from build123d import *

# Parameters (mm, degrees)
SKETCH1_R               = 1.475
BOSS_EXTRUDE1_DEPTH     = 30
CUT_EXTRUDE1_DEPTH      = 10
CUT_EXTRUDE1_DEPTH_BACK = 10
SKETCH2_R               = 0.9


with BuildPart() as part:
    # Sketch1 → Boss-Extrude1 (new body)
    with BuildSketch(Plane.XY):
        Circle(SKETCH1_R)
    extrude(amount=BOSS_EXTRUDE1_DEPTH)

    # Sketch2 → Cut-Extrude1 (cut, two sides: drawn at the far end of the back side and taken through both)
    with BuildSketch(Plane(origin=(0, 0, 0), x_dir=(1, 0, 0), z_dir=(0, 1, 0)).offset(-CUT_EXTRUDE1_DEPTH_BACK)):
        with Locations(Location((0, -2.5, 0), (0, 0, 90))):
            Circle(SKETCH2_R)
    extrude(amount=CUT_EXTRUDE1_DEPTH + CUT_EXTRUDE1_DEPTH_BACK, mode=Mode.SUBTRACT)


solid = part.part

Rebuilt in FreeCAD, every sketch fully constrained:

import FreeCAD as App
import Part
import Sketcher
Q = App.Units.Quantity

doc = App.newDocument("Part")
body = doc.addObject("PartDesign::Body", "Body")

sketch1 = body.newObject("Sketcher::SketchObject", "Sketch")
sketch1.AttachmentSupport = (doc.getObject("XY_Plane"), [""])
sketch1.MapMode = "FlatFace"
sketch1.addGeometry(Part.Circle(App.Vector(0, 0, 0), App.Vector(0, 0, 1), 1.5), False)
sketch1.addConstraint([
    Sketcher.Constraint("Coincident", 0, 3, -1, 1),
    Sketcher.Constraint("Diameter", 0, Q("2.95 mm")),
])
pad1 = body.newObject("PartDesign::Pad", "Pad")
pad1.Profile = sketch1
pad1.Length = 30

sketch2 = body.newObject("Sketcher::SketchObject", "Sketch001")
sketch2.AttachmentSupport = (doc.getObject("XZ_Plane"), [""])
sketch2.MapMode = "FlatFace"
sketch2.addGeometry(Part.Circle(App.Vector(0, 2.5, 0), App.Vector(0, 0, 1), 0.9), False)
sketch2.addConstraint([
    Sketcher.Constraint("PointOnObject", 0, 3, -2),
    Sketcher.Constraint("Diameter", 0, Q("1.8 mm")),
    Sketcher.Constraint("DistanceY", -1, 1, 0, 3, Q("2.5 mm")),
])
pocket1 = body.newObject("PartDesign::Pocket", "Pocket")
pocket1.Profile = sketch2
pocket1.Type = "ThroughAll"
pocket1.Midplane = True

doc.recompute()
